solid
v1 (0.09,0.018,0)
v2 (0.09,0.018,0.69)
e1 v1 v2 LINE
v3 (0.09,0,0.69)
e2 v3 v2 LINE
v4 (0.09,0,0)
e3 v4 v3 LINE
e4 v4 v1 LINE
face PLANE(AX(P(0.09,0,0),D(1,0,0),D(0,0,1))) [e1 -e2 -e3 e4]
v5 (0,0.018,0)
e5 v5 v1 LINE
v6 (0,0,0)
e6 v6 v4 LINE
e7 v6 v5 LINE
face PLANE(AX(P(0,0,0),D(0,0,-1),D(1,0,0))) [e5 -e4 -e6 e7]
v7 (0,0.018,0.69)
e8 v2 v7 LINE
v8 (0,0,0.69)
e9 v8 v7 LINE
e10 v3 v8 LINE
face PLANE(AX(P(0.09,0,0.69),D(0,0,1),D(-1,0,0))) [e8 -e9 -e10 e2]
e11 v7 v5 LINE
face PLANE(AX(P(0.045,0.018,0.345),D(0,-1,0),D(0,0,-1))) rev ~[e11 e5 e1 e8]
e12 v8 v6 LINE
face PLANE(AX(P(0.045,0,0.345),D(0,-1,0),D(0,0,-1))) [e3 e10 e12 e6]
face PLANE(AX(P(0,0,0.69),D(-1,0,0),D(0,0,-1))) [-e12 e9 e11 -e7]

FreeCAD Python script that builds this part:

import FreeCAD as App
import Part
import Sketcher
Q = App.Units.Quantity


def add_polygon(sketch, points):
    """Adds a closed chain of lines whose ends are joined by coincident constraints."""
    first, n = sketch.GeometryCount, len(points)
    for a, b in zip(points, points[1:] + points[:1]):
        sketch.addGeometry(Part.LineSegment(App.Vector(*a, 0), App.Vector(*b, 0)), False)
    for i in range(n):
        sketch.addConstraint(Sketcher.Constraint("Coincident", first + i, 2, first + (i + 1) % n, 1))

doc = App.newDocument("Part")
body = doc.addObject("PartDesign::Body", "Body")

sketch1 = body.newObject("Sketcher::SketchObject", "Sketch")
sketch1.AttachmentSupport = (doc.getObject("XZ_Plane"), [""])
sketch1.MapMode = "FlatFace"
add_polygon(sketch1, [(0, 0.69), (0, 0), (0.09, 0), (0.09, 0.69)])
sketch1.addConstraint([
    Sketcher.Constraint("Vertical", 0),
    Sketcher.Constraint("Horizontal", 1),
    Sketcher.Constraint("Vertical", 2),
    Sketcher.Constraint("Horizontal", 3),
    Sketcher.Constraint("Coincident", 0, 2, -1, 1),
    Sketcher.Constraint("DistanceX", 1, 1, 1, 2, Q("0.09 mm")),
    Sketcher.Constraint("DistanceY", 0, 2, 0, 1, Q("0.69 mm")),
])
pad1 = body.newObject("PartDesign::Pad", "Pad")
pad1.Profile = sketch1
pad1.Length = 0.018
pad1.Reversed = True

doc.recompute()
